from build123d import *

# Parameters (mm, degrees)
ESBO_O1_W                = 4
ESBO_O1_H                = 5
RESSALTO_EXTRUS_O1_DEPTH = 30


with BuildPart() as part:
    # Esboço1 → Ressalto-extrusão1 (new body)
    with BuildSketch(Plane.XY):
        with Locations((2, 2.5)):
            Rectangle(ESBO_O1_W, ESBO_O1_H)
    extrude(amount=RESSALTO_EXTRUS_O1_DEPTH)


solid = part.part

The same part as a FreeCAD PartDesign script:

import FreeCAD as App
import Part
import Sketcher
Q = App.Units.Quantity

doc = App.newDocument("Part")
body = doc.addObject("PartDesign::Body", "Body")

# Sketch on XY plane
sketch1 = body.newObject("Sketcher::SketchObject", "Sketch")
sketch1.AttachmentSupport = (doc.getObject("XY_Plane"), [""])
sketch1.MapMode = "FlatFace"
sketch1.addGeometry(Part.LineSegment(App.Vector(0, 5, 0), App.Vector(0, 0, 0)), False)
sketch1.addGeometry(Part.LineSegment(App.Vector(0, 0, 0), App.Vector(4, 0, 0)), False)
sketch1.addGeometry(Part.LineSegment(App.Vector(4, 0, 0), App.Vector(4, 5, 0)), False)
sketch1.addGeometry(Part.LineSegment(App.Vector(4, 5, 0), App.Vector(0, 5, 0)), False)
sketch1.addConstraint(Sketcher.Constraint("Coincident", 0, 2, 1, 1))
sketch1.addConstraint(Sketcher.Constraint("Coincident", 1, 2, 2, 1))
sketch1.addConstraint(Sketcher.Constraint("Coincident", 2, 2, 3, 1))
sketch1.addConstraint(Sketcher.Constraint("Coincident", 3, 2, 0, 1))
sketch1.addConstraint(Sketcher.Constraint("Vertical", 0))
sketch1.addConstraint(Sketcher.Constraint("Horizontal", 1))
sketch1.addConstraint(Sketcher.Constraint("Vertical", 2))
sketch1.addConstraint(Sketcher.Constraint("Horizontal", 3))
sketch1.addConstraint(Sketcher.Constraint("Coincident", 0, 2, -1, 1))
sketch1.addConstraint(Sketcher.Constraint("DistanceX", 1, 1, 1, 2, Q("4 mm")))
sketch1.addConstraint(Sketcher.Constraint("DistanceY", 0, 2, 0, 1, Q("5 mm")))
pad1 = body.newObject("PartDesign::Pad", "Pad")
pad1.Profile = sketch1
pad1.Length = 30

doc.recompute()
